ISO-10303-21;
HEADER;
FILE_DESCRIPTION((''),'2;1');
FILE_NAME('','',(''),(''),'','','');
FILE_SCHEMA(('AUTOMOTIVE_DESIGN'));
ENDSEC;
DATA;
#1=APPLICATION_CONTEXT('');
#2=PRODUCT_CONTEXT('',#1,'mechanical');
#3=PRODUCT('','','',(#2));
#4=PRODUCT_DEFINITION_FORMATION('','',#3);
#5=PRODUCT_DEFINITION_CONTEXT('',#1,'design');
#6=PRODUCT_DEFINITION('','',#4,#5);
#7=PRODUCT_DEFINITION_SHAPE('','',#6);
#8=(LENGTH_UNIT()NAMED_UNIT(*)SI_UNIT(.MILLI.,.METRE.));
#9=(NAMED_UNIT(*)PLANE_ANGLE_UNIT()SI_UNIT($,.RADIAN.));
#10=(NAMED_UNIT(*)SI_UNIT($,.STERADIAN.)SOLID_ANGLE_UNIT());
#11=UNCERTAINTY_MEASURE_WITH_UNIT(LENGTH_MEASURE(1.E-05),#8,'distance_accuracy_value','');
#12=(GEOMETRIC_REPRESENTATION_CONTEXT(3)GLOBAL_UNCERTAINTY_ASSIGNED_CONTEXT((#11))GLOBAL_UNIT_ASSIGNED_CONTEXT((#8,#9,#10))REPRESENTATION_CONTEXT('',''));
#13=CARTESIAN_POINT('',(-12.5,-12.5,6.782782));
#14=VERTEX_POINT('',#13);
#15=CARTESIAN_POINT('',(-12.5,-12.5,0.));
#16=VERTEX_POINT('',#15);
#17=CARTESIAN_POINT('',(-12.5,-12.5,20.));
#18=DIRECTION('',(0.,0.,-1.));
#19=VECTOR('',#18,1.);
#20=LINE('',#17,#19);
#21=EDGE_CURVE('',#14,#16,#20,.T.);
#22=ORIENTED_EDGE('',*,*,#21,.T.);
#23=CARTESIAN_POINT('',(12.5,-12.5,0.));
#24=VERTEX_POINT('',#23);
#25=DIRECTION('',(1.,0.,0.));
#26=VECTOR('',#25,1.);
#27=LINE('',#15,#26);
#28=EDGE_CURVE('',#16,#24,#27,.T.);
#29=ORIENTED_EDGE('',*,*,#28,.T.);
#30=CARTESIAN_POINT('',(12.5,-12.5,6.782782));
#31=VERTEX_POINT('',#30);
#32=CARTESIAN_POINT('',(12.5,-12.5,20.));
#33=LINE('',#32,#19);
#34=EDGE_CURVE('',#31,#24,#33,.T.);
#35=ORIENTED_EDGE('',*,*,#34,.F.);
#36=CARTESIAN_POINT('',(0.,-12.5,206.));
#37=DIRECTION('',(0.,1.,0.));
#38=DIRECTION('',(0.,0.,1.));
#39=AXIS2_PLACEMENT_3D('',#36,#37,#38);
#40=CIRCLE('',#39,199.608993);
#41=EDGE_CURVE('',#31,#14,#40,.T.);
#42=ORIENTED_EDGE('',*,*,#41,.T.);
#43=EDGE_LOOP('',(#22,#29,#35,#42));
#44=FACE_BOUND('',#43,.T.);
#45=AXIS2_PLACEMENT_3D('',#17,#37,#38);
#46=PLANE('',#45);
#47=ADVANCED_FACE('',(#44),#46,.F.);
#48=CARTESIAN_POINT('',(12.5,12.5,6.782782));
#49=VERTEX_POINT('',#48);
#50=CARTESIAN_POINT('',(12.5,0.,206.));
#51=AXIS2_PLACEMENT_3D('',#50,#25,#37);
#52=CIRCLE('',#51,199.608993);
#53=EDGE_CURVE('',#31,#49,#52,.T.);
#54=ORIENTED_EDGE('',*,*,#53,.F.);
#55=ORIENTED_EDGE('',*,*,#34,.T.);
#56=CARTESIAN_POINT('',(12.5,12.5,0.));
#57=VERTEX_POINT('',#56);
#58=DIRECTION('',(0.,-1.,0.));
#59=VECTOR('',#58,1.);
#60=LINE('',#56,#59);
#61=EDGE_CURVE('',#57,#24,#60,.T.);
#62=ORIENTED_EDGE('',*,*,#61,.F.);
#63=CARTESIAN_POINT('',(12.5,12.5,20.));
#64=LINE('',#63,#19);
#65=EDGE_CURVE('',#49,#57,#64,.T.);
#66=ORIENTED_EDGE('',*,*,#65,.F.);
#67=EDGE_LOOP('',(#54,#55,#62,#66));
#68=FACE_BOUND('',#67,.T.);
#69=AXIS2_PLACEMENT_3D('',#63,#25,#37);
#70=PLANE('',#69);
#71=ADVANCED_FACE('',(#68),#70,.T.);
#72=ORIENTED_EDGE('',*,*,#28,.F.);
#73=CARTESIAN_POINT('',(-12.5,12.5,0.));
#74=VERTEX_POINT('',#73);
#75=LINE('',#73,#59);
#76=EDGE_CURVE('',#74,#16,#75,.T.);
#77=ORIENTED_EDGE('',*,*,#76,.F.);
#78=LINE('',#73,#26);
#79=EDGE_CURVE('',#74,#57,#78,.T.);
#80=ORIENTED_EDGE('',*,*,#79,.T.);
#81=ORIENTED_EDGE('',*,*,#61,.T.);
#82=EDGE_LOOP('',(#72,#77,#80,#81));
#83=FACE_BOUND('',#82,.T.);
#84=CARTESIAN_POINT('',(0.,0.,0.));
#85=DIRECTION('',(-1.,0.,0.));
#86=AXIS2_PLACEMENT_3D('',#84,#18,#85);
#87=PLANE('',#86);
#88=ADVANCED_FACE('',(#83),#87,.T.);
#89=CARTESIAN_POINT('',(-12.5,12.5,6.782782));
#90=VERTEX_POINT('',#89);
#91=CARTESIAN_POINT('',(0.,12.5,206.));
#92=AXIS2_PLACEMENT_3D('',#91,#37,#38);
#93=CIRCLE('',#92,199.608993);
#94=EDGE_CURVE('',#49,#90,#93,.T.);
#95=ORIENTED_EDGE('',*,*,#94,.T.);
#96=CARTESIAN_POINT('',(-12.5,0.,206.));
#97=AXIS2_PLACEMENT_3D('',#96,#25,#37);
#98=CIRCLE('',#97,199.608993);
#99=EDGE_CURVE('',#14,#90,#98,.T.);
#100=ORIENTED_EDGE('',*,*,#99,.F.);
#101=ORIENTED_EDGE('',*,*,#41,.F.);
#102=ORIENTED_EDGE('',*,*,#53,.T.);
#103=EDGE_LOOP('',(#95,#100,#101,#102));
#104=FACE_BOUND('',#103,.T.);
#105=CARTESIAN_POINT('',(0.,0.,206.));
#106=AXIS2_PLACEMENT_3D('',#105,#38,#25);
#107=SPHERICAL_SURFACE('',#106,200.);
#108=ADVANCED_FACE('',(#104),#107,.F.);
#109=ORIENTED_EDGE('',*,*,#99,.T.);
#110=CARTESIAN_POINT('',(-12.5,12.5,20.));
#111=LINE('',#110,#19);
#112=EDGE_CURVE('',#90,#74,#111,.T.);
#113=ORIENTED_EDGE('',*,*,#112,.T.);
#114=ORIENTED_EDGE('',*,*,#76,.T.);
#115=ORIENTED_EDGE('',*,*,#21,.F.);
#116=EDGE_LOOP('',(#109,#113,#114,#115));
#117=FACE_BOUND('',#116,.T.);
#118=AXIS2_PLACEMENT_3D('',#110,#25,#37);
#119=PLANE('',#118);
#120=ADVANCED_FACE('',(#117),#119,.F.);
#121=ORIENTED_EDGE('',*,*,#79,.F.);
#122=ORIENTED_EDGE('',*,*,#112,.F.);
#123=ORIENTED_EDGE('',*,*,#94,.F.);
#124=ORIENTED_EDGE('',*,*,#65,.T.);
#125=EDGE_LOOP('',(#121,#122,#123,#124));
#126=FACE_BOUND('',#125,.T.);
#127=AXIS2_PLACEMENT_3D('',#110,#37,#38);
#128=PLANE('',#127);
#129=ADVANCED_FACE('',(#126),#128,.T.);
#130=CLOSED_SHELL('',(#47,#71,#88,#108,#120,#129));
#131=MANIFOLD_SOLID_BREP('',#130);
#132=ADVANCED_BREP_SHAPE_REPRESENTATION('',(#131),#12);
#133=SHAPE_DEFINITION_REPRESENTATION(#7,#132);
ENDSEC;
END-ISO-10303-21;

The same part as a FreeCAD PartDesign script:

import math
import FreeCAD as App
import Part
import Sketcher
from FreeCAD import Vector
Q = App.Units.Quantity

doc = App.newDocument("Part")
params = doc.addObject("Spreadsheet::Sheet", "Params")
for row, (alias, value) in enumerate([
    ("sketch1_width", "25 mm"),
    ("pad1_length", "20 mm"),
    ("sketch2_radius", "200 mm"),
    ("groove_angle", "360 deg"),
], start=1):
    params.set(f"A{row}", alias)
    params.set(f"B{row}", "=" + value)
    params.setAlias(f"B{row}", alias)

body = doc.addObject("PartDesign::Body", "Body")

# Sketch on XY plane
sketch1 = body.newObject("Sketcher::SketchObject", "Sketch")
sketch1.AttachmentSupport = (doc.getObject("XY_Plane"), [""])
sketch1.MapMode = "FlatFace"
sketch1.addGeometry(Part.LineSegment(Vector(-12, 12, 0), Vector(-12, -12, 0)), False)
sketch1.addGeometry(Part.LineSegment(Vector(-12, -12, 0), Vector(12, -12, 0)), False)
sketch1.addGeometry(Part.LineSegment(Vector(12, -12, 0), Vector(12, 12, 0)), False)
sketch1.addGeometry(Part.LineSegment(Vector(12, 12, 0), Vector(-12, 12, 0)), False)
sketch1.addConstraint(Sketcher.Constraint("Coincident", 0, 2, 1, 1))
sketch1.addConstraint(Sketcher.Constraint("Coincident", 1, 2, 2, 1))
sketch1.addConstraint(Sketcher.Constraint("Coincident", 2, 2, 3, 1))
sketch1.addConstraint(Sketcher.Constraint("Coincident", 3, 2, 0, 1))
sketch1.addConstraint(Sketcher.Constraint("Vertical", 0))
sketch1.addConstraint(Sketcher.Constraint("Horizontal", 1))
sketch1.addConstraint(Sketcher.Constraint("Vertical", 2))
sketch1.addConstraint(Sketcher.Constraint("Horizontal", 3))
sketch1.addConstraint(Sketcher.Constraint("Symmetric", 0, 2, 2, 2, -1, 1))
sketch1.addConstraint(Sketcher.Constraint("Equal", 3, 0))
sketch1.addConstraint(Sketcher.Constraint("DistanceX", 1, 1, 1, 2, Q("25 mm")))
sketch1.setExpression("Constraints[10]", "Params.sketch1_width")
pad1 = body.newObject("PartDesign::Pad", "Pad")
pad1.Profile = sketch1
pad1.setExpression("Length", "Params.pad1_length")

# Sketch on XZ plane
sketch2 = body.newObject("Sketcher::SketchObject", "Sketch001")
sketch2.AttachmentSupport = (doc.getObject("XZ_Plane"), [""])
sketch2.MapMode = "FlatFace"
sketch2.addGeometry(Part.LineSegment(Vector(0, 161, 0), Vector(195, 161, 0)), False)
sketch2.addGeometry(Part.ArcOfCircle(Part.Circle(Vector(0, 206, 0), Vector(0, 0, 1), 200), math.radians(-90), math.radians(-13)), False)
sketch2.addGeometry(Part.LineSegment(Vector(0, 6, 0), Vector(0, 161, 0)), False)
sketch2.addConstraint(Sketcher.Constraint("Coincident", 0, 2, 1, 2))
sketch2.addConstraint(Sketcher.Constraint("Coincident", 1, 1, 2, 1))
sketch2.addConstraint(Sketcher.Constraint("Coincident", 2, 2, 0, 1))
sketch2.addConstraint(Sketcher.Constraint("Horizontal", 0))
sketch2.addConstraint(Sketcher.Constraint("Vertical", 2))
sketch2.addConstraint(Sketcher.Constraint("PointOnObject", 1, 3, -2))
sketch2.addConstraint(Sketcher.Constraint("PointOnObject", 1, 1, -2))
sketch2.addConstraint(Sketcher.Constraint("Radius", 1, Q("200 mm")))
sketch2.addConstraint(Sketcher.Constraint("DistanceY", -1, 1, 1, 3, Q("206 mm")))
sketch2.addConstraint(Sketcher.Constraint("DistanceX", 0, 1, 0, 2, Q("194.969092 mm")))
sketch2.setExpression("Constraints[7]", "Params.sketch2_radius")
groove = body.newObject("PartDesign::Groove", "Groove")
groove.Profile = sketch2
groove.ReferenceAxis = (sketch2, ["V_Axis"])
groove.setExpression("Angle", "Params.groove_angle")

doc.recompute()
